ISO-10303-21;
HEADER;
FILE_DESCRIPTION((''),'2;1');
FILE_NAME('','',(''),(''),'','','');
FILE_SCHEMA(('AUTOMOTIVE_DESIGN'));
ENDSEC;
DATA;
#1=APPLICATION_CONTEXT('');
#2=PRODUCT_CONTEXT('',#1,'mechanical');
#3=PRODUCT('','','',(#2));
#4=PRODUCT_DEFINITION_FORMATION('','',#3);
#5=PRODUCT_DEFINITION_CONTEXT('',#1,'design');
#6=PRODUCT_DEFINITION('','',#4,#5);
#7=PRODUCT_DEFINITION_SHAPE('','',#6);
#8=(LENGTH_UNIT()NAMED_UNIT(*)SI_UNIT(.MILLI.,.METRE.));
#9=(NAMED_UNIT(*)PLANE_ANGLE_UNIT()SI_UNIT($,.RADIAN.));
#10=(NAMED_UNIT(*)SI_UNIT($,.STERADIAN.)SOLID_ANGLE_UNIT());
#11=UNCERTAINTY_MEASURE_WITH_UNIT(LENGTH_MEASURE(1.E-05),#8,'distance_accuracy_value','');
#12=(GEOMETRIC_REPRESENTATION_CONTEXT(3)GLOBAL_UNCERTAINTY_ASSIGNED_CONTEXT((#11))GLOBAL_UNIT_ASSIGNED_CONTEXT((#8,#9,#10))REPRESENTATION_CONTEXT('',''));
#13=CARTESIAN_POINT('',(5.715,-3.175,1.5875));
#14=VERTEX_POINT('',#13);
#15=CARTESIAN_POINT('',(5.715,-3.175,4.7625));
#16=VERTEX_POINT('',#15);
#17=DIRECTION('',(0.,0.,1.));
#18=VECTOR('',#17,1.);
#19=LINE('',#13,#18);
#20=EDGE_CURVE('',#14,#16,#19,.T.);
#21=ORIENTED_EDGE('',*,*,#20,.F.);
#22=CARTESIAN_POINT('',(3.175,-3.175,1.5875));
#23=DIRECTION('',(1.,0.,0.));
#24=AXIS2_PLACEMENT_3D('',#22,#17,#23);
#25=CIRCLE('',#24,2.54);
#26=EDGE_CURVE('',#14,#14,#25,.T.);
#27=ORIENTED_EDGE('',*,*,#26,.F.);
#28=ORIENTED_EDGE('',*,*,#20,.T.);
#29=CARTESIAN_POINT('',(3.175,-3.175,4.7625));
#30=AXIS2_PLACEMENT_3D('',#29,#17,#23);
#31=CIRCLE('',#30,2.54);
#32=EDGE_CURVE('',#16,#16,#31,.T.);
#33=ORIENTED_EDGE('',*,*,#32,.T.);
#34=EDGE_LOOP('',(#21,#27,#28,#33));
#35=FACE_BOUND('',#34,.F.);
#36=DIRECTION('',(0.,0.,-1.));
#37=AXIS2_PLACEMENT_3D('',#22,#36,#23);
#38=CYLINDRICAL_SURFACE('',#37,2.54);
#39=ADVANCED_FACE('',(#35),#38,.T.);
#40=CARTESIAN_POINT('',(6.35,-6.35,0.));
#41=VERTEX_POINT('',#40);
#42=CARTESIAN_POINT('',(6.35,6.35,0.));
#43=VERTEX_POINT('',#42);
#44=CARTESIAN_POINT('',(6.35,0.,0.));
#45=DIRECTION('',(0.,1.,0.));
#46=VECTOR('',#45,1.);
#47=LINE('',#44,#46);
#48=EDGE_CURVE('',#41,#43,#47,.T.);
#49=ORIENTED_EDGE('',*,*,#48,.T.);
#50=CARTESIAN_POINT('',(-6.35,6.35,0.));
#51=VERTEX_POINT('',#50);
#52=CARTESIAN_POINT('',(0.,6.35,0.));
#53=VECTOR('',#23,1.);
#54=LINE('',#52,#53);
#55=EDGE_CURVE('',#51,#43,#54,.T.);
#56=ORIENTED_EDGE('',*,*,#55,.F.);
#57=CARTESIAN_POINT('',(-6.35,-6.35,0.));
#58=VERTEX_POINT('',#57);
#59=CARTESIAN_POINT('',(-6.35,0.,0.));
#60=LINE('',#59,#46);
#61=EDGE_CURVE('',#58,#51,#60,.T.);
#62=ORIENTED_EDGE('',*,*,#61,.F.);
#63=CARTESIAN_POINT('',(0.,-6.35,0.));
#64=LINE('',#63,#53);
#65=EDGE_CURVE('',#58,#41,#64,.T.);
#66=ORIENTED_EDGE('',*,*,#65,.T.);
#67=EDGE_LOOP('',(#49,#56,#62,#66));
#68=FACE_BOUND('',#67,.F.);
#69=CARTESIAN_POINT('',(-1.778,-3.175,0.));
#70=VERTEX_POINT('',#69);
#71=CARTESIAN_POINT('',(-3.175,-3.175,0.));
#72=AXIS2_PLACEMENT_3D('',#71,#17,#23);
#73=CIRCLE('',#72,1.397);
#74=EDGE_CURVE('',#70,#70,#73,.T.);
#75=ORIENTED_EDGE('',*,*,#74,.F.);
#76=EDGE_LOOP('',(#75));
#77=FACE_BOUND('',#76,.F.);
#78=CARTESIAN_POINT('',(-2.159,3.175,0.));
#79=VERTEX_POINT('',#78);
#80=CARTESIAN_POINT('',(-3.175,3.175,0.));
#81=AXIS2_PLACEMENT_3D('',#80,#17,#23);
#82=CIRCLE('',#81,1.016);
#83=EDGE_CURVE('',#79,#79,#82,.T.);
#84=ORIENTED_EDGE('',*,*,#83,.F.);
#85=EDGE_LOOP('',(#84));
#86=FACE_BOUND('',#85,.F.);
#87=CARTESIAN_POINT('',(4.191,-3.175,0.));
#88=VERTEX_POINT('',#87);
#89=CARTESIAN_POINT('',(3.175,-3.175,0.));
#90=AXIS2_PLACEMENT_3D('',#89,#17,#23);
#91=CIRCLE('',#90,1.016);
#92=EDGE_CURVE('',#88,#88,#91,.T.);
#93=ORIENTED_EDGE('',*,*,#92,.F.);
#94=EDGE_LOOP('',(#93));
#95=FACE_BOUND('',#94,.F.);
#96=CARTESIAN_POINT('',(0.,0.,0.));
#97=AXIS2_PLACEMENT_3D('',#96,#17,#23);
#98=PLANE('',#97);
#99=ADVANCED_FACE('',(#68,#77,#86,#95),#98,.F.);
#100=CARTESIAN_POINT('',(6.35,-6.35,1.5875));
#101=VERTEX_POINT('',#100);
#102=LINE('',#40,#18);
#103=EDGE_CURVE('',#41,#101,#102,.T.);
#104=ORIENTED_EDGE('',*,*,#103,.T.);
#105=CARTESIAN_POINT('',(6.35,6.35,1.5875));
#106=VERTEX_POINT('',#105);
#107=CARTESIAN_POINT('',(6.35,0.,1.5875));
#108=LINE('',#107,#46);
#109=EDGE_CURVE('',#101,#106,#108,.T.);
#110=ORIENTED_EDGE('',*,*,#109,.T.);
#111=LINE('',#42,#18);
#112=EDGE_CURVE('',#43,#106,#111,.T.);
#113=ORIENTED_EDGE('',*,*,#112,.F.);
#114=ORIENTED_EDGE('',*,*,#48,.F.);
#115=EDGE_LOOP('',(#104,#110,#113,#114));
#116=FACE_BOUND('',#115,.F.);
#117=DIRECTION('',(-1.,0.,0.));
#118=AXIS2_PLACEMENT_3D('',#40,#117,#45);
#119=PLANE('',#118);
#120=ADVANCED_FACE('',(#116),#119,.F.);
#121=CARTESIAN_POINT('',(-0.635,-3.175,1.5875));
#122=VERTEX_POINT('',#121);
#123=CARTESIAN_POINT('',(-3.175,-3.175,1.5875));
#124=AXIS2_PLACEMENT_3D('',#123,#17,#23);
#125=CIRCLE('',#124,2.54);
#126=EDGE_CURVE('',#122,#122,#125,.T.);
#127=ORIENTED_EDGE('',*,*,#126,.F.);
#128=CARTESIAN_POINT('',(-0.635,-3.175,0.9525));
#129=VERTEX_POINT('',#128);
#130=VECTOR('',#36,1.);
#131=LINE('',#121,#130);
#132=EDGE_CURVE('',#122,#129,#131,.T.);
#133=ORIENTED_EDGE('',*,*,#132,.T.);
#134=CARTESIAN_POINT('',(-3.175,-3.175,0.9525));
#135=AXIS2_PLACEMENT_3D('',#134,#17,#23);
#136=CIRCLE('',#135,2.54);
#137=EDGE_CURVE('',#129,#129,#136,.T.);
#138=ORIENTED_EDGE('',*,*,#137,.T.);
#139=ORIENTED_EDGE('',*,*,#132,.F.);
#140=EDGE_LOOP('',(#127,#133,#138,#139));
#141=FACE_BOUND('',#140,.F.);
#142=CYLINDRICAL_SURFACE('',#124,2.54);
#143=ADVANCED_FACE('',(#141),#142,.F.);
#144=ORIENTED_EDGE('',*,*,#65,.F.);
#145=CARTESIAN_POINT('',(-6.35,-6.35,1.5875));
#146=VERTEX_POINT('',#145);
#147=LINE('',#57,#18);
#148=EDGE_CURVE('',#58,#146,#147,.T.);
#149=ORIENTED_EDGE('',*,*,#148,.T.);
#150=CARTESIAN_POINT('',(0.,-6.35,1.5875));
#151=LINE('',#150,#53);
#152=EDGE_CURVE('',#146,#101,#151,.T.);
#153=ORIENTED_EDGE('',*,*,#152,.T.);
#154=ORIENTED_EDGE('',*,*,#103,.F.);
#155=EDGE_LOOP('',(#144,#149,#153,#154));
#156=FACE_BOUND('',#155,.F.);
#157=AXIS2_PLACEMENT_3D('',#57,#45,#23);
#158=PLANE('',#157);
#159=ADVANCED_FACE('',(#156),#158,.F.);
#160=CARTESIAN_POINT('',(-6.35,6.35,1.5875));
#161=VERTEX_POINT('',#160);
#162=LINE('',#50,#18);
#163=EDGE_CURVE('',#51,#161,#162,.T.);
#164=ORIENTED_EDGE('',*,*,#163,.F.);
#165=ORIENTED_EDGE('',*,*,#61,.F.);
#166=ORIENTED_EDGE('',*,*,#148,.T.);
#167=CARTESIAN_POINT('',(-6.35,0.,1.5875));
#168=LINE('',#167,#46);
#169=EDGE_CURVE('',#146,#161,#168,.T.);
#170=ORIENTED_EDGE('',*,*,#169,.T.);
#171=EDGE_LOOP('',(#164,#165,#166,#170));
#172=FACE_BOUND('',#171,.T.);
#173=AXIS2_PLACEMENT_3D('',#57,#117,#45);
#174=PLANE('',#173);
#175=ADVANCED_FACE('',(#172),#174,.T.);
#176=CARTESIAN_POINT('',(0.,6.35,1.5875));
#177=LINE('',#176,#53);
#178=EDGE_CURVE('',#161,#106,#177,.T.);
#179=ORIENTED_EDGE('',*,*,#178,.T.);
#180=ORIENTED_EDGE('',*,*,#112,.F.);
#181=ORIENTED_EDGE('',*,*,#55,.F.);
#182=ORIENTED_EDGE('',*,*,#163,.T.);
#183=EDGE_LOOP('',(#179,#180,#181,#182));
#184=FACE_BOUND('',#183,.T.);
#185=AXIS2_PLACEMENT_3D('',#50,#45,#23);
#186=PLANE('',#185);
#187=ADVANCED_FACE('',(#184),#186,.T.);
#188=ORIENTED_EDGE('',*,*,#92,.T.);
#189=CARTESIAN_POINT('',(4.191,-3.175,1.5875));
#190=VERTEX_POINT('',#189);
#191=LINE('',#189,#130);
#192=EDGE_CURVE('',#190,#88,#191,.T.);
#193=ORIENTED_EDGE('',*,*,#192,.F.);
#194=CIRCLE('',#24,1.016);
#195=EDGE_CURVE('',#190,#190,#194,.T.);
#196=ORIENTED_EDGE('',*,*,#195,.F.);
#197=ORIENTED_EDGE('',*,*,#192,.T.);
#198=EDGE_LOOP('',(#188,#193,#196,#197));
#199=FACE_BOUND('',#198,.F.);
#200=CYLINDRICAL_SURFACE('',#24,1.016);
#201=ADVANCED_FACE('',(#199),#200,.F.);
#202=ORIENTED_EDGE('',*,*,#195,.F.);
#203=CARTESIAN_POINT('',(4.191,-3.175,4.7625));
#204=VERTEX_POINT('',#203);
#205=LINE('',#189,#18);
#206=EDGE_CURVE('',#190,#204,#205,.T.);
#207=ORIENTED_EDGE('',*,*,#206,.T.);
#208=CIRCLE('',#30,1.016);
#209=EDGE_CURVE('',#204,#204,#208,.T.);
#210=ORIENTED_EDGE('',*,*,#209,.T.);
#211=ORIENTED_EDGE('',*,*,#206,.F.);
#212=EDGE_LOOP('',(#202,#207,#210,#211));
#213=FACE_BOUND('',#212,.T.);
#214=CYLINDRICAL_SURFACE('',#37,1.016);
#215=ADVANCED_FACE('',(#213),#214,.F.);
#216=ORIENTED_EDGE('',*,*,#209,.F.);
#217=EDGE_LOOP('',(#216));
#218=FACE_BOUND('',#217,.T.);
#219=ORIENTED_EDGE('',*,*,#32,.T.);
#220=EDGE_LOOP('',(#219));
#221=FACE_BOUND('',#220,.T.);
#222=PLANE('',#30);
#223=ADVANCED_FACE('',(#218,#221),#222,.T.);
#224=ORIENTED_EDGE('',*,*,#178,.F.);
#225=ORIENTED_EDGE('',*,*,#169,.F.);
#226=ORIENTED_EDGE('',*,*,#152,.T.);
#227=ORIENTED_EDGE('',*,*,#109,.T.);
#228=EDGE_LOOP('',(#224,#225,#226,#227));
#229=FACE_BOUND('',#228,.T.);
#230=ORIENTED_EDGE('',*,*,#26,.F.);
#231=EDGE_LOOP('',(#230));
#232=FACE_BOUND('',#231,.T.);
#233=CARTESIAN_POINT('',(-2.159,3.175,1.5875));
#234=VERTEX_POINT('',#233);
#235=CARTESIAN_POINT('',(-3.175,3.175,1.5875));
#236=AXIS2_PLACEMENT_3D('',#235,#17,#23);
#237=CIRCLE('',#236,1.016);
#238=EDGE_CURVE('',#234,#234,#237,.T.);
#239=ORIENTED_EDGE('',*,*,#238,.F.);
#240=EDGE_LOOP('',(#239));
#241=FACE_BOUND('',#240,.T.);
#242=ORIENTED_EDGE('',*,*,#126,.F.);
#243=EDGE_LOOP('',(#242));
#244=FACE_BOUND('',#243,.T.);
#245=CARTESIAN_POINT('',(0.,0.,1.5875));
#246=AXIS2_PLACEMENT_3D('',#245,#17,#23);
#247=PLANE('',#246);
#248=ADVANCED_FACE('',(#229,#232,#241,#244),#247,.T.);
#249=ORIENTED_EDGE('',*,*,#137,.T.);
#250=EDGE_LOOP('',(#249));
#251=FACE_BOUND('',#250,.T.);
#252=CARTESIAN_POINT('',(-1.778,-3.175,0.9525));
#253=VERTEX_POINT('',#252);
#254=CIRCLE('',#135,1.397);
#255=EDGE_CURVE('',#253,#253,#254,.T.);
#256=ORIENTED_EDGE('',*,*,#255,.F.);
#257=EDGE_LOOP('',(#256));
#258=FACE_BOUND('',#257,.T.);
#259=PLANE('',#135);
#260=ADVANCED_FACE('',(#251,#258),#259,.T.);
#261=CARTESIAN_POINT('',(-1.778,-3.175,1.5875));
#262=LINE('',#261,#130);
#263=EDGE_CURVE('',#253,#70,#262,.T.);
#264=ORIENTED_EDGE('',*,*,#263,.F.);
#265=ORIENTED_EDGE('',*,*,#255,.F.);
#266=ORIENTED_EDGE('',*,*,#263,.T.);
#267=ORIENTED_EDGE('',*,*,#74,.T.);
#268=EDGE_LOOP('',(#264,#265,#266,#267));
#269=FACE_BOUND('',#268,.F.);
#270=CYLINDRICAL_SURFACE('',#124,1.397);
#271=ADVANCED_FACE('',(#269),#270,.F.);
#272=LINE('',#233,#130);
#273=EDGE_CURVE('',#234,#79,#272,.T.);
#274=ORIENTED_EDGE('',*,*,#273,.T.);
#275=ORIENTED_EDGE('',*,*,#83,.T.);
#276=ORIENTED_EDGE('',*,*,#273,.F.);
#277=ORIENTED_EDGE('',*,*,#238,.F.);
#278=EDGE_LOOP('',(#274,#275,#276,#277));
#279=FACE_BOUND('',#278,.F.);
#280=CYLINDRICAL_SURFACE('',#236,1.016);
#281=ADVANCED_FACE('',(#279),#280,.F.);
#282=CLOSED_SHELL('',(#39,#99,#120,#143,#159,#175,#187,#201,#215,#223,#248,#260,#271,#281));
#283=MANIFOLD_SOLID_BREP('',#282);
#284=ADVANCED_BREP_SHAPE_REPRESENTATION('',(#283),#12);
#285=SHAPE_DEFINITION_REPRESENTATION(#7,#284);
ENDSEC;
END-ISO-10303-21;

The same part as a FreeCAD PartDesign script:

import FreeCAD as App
import Part
import Sketcher

V = App.Vector
Q = App.Units.Quantity

doc = App.newDocument("Part")
body = doc.addObject("PartDesign::Body", "Body")

# Sketch on XY plane
sketch1 = body.newObject("Sketcher::SketchObject", "Sketch")
sketch1.AttachmentSupport = (doc.getObject("XY_Plane"), [""])
sketch1.MapMode = "FlatFace"
sketch1.addGeometry(Part.LineSegment(V(-6, 6, 0), V(-6, -6, 0)), False)
sketch1.addGeometry(Part.LineSegment(V(-6, -6, 0), V(6, -6, 0)), False)
sketch1.addGeometry(Part.LineSegment(V(6, -6, 0), V(6, 6, 0)), False)
sketch1.addGeometry(Part.LineSegment(V(6, 6, 0), V(-6, 6, 0)), False)
sketch1.addConstraint(Sketcher.Constraint("Coincident", 0, 2, 1, 1))
sketch1.addConstraint(Sketcher.Constraint("Coincident", 1, 2, 2, 1))
sketch1.addConstraint(Sketcher.Constraint("Coincident", 2, 2, 3, 1))
sketch1.addConstraint(Sketcher.Constraint("Coincident", 3, 2, 0, 1))
sketch1.addConstraint(Sketcher.Constraint("Vertical", 0))
sketch1.addConstraint(Sketcher.Constraint("Horizontal", 1))
sketch1.addConstraint(Sketcher.Constraint("Vertical", 2))
sketch1.addConstraint(Sketcher.Constraint("Horizontal", 3))
sketch1.addConstraint(Sketcher.Constraint("Symmetric", 0, 2, 2, 2, -1, 1))
sketch1.addConstraint(Sketcher.Constraint("Equal", 3, 0))
sketch1.addConstraint(Sketcher.Constraint("DistanceX", 1, 1, 1, 2, Q("0.5 in")))
pad1 = body.newObject("PartDesign::Pad", "Pad")
pad1.Profile = sketch1
pad1.Length = Q("0.0625 in")

# Sketch on XY plane
sketch2 = body.newObject("Sketcher::SketchObject", "Sketch001")
sketch2.AttachmentSupport = (doc.getObject("XY_Plane"), [""])
sketch2.MapMode = "FlatFace"
sketch2.AttachmentOffset = App.Placement(V(0, 0, 0.0625 * 25.4), App.Rotation())
sketch2.addGeometry(Part.Circle(V(-3.2, 3.2, 0), V(0, 0, 1), 1), False)
sketch2.addGeometry(Part.Circle(V(3.2, -3.2, 0), V(0, 0, 1), 1), False)
sketch2.addGeometry(Part.Circle(V(-3.2, -3.2, 0), V(0, 0, 1), 1.4), False)
sketch2.addConstraint(Sketcher.Constraint("Equal", 0, 1))
sketch2.addConstraint(Sketcher.Constraint("Symmetric", 0, 3, 1, 3, -1, 1))
sketch2.addConstraint(Sketcher.Constraint("Symmetric", 1, 3, 2, 3, -2))
sketch2.addConstraint(Sketcher.Constraint("Diameter", 0, Q("0.08 in")))
sketch2.addConstraint(Sketcher.Constraint("Diameter", 2, Q("0.11 in")))
sketch2.addConstraint(Sketcher.Constraint("DistanceX", 0, 3, 1, 3, Q("0.25 in")))
sketch2.addConstraint(Sketcher.Constraint("DistanceY", 1, 3, 0, 3, Q("0.25 in")))
pocket1 = body.newObject("PartDesign::Pocket", "Pocket")
pocket1.Profile = sketch2
pocket1.Length = Q("0.25 in")

# Sketch on XY plane
sketch3 = body.newObject("Sketcher::SketchObject", "Sketch002")
sketch3.AttachmentSupport = (doc.getObject("XY_Plane"), [""])
sketch3.MapMode = "FlatFace"
sketch3.AttachmentOffset = App.Placement(V(0, 0, 0.0625 * 25.4), App.Rotation())
sketch3.addGeometry(Part.Circle(V(3.2, -3.2, 0), V(0, 0, 1), 2.5), False)
sketch3.addGeometry(Part.Circle(V(3.2, -3.2, 0), V(0, 0, 1), 1), False)
sketch3.addConstraint(Sketcher.Constraint("Coincident", 1, 3, 0, 3))
sketch3.addConstraint(Sketcher.Constraint("Diameter", 0, Q("0.2 in")))
sketch3.addConstraint(Sketcher.Constraint("Diameter", 1, Q("0.08 in")))
sketch3.addConstraint(Sketcher.Constraint("DistanceX", -1, 1, 0, 3, Q("0.125 in")))
sketch3.addConstraint(Sketcher.Constraint("DistanceY", 0, 3, -1, 1, Q("0.125 in")))
pad2 = body.newObject("PartDesign::Pad", "Pad001")
pad2.Profile = sketch3
pad2.Length = Q("0.125 in")

# Sketch on XY plane
sketch4 = body.newObject("Sketcher::SketchObject", "Sketch003")
sketch4.AttachmentSupport = (doc.getObject("XY_Plane"), [""])
sketch4.MapMode = "FlatFace"
sketch4.AttachmentOffset = App.Placement(V(0, 0, 0.0625 * 25.4), App.Rotation())
sketch4.addGeometry(Part.Circle(V(-3.2, -3.2, 0), V(0, 0, 1), 2.5), False)
sketch4.addGeometry(Part.Circle(V(-3.2, -3.2, 0), V(0, 0, 1), 1.4), False)
sketch4.addConstraint(Sketcher.Constraint("Coincident", 1, 3, 0, 3))
sketch4.addConstraint(Sketcher.Constraint("Diameter", 0, Q("0.2 in")))
sketch4.addConstraint(Sketcher.Constraint("Diameter", 1, Q("0.11 in")))
sketch4.addConstraint(Sketcher.Constraint("DistanceX", 0, 3, -1, 1, Q("0.125 in")))
sketch4.addConstraint(Sketcher.Constraint("DistanceY", 0, 3, -1, 1, Q("0.125 in")))
pocket2 = body.newObject("PartDesign::Pocket", "Pocket001")
pocket2.Profile = sketch4
pocket2.Length = Q("0.025 in")

doc.recompute()
